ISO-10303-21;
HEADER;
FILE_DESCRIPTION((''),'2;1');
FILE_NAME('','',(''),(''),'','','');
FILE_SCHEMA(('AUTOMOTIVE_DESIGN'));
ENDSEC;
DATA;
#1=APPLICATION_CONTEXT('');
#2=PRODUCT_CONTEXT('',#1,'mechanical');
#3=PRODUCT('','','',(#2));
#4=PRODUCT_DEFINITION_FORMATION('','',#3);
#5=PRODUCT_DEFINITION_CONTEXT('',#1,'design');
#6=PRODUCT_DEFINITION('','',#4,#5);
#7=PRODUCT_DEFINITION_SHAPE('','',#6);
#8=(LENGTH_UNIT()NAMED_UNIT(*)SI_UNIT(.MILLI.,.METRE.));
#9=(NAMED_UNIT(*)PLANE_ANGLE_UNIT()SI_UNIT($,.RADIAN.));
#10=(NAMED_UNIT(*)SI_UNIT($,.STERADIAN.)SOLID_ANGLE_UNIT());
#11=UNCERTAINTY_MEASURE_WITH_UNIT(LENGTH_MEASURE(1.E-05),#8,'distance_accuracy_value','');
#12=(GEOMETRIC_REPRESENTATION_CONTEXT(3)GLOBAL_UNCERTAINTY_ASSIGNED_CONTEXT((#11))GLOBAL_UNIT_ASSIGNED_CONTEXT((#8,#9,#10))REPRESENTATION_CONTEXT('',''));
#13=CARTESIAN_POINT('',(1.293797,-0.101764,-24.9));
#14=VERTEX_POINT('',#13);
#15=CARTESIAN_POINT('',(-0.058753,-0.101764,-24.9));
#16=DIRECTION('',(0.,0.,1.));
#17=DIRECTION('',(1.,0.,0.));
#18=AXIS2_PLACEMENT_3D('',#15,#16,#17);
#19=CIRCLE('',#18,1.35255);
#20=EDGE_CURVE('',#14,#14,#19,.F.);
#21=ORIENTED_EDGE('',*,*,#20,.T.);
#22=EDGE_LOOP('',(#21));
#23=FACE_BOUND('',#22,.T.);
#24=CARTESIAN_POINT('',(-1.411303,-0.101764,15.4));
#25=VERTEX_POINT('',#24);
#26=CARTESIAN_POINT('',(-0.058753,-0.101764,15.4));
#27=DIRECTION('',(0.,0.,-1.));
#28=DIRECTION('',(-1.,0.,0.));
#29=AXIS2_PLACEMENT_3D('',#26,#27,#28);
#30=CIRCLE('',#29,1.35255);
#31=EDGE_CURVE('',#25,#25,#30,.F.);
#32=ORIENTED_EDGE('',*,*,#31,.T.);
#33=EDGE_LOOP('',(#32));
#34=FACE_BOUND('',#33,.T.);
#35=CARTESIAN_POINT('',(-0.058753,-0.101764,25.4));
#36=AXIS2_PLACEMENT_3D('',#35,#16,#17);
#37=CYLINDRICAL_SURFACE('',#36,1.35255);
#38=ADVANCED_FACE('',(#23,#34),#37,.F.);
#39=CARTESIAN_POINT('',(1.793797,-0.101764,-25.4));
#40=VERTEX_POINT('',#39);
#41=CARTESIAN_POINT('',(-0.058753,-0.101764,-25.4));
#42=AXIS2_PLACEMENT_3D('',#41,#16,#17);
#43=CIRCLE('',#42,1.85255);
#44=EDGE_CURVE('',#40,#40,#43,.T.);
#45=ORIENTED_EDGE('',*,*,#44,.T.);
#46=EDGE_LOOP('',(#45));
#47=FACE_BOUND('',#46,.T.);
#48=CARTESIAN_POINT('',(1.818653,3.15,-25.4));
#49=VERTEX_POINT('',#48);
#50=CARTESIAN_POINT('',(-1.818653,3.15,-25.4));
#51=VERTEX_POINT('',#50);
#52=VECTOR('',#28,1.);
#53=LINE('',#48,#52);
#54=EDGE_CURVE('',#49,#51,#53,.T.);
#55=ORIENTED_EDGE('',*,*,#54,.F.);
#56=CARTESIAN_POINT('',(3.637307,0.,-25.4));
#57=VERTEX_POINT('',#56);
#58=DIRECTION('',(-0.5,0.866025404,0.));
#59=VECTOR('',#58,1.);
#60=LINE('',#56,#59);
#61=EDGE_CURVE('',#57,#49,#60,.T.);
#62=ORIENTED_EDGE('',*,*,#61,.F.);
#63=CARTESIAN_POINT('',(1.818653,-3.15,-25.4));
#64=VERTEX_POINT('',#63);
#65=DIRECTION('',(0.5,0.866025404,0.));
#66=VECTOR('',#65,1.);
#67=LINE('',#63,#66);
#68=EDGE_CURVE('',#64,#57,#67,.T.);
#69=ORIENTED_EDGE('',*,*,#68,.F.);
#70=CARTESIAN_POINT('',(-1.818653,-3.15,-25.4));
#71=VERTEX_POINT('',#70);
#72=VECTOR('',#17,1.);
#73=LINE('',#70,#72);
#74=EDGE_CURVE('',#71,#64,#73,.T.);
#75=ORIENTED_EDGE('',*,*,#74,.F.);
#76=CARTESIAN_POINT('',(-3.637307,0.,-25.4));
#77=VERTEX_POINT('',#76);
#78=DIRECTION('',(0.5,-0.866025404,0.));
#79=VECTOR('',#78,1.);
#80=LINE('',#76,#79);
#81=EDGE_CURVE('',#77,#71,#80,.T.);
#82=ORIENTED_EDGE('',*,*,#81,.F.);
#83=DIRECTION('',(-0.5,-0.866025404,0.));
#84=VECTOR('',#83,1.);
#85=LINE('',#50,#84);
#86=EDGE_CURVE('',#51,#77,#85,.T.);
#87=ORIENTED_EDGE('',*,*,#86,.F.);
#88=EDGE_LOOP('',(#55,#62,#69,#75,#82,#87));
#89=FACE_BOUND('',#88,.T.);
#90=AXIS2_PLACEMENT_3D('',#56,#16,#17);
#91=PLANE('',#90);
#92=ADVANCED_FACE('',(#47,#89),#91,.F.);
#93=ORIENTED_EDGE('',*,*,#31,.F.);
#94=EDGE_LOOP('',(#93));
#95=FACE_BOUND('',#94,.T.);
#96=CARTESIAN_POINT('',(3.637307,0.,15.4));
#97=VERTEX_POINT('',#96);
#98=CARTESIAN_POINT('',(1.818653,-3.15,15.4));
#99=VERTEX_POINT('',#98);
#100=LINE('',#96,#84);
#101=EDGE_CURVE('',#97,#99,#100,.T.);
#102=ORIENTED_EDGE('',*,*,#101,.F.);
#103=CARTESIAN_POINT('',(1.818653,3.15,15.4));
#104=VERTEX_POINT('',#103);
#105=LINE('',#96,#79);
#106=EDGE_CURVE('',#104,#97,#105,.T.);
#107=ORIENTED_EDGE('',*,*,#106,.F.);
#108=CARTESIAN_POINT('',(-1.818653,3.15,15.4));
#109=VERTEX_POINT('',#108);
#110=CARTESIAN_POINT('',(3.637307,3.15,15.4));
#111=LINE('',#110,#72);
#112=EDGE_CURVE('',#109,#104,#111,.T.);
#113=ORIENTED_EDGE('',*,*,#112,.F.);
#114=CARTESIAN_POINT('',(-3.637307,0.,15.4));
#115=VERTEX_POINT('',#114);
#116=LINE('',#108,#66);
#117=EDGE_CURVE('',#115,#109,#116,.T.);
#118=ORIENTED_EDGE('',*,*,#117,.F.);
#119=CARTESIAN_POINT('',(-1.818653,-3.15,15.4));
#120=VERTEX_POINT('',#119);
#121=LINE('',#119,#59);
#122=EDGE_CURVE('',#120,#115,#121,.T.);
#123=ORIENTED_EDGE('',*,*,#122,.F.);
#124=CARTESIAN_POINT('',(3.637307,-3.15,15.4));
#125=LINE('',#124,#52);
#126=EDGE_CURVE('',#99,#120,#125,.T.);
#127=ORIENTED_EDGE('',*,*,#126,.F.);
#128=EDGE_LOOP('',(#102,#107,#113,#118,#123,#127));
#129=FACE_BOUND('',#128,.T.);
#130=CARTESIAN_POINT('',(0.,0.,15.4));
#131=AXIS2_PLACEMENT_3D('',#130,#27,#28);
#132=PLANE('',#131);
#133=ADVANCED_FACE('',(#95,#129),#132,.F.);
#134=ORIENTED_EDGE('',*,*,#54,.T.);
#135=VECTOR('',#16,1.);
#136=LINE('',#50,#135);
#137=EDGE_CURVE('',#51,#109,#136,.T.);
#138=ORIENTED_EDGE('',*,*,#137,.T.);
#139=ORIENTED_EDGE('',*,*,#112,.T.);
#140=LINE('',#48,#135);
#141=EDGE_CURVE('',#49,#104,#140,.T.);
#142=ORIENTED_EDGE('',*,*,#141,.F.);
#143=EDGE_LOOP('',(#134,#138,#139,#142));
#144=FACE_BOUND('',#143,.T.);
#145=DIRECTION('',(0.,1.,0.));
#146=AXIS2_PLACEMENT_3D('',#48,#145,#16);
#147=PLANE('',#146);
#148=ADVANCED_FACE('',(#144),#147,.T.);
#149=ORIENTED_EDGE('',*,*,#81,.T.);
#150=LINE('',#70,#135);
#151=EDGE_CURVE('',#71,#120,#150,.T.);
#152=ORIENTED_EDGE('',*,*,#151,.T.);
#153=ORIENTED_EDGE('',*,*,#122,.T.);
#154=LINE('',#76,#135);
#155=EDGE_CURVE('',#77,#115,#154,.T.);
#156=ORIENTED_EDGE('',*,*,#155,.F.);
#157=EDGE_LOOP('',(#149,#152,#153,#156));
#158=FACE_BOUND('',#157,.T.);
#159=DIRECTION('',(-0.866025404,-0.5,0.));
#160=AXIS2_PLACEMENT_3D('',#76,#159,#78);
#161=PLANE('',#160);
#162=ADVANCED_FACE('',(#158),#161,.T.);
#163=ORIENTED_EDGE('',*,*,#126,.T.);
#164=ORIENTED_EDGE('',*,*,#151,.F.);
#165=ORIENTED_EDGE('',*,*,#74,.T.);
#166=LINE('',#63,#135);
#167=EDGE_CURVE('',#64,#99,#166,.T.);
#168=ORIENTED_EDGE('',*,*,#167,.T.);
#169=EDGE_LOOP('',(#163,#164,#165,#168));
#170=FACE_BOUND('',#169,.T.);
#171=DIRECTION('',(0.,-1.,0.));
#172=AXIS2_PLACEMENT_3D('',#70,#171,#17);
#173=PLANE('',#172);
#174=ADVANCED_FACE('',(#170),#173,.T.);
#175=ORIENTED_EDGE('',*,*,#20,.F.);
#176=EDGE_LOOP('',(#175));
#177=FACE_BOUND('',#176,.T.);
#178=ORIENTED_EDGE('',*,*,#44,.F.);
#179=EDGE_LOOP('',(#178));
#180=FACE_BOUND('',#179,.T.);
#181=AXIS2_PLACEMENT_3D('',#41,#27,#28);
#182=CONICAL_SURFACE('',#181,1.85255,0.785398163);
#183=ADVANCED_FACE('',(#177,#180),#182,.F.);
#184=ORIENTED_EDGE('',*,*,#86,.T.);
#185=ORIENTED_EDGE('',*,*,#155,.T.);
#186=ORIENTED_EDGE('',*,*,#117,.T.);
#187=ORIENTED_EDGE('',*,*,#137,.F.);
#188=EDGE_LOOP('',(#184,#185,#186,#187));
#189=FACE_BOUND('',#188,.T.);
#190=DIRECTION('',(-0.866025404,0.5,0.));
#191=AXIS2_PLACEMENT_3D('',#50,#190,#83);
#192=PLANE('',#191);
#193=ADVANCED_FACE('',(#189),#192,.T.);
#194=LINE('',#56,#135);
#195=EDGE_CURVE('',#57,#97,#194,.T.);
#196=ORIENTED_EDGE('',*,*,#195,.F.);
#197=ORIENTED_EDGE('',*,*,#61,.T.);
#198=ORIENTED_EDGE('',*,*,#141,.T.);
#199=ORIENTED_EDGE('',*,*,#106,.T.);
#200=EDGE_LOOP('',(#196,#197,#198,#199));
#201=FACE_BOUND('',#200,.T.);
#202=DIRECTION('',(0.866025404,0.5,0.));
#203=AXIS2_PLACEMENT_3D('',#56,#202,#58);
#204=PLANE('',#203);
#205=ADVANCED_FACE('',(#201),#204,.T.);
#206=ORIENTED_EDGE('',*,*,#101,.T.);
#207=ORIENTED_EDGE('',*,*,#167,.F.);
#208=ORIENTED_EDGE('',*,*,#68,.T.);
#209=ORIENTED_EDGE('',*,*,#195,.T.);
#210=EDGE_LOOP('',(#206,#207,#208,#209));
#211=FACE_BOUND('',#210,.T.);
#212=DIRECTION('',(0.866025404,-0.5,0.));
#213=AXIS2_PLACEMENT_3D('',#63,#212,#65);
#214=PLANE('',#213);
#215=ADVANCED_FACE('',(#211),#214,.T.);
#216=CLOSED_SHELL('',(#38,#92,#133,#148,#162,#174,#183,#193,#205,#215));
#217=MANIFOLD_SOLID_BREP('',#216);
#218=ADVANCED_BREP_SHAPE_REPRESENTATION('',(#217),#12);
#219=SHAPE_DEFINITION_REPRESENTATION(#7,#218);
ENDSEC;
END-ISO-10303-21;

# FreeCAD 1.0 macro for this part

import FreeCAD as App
import Part
import Sketcher

V = App.Vector
Q = App.Units.Quantity


def edges_at(feature, points):
    """Names of the edges that pass closest to the given points."""
    edges = feature.Shape.Edges
    near = lambda p: min(range(len(edges)), key=lambda i: edges[i].distToShape(Part.Vertex(*p))[0])
    return sorted({f"Edge{near(p) + 1}" for p in points})


def add_polygon(sketch, points):
    """Adds a closed chain of lines whose ends are joined by coincident constraints."""
    first, n = sketch.GeometryCount, len(points)
    for a, b in zip(points, points[1:] + points[:1]):
        sketch.addGeometry(Part.LineSegment(App.Vector(*a, 0), App.Vector(*b, 0)), False)
    for i in range(n):
        sketch.addConstraint(Sketcher.Constraint("Coincident", first + i, 2, first + (i + 1) % n, 1))

doc = App.newDocument("Part")
body = doc.addObject("PartDesign::Body", "Body")

sketch1 = body.newObject("Sketcher::SketchObject", "Sketch")
sketch1.AttachmentSupport = (doc.getObject("XY_Plane"), [""])
sketch1.MapMode = "FlatFace"
add_polygon(sketch1, [(3.6, 0), (1.8, 3.1), (-1.8, 3.1), (-3.6, 0), (-1.8, -3.1), (1.8, -3.1)])
sketch1.addConstraint(Sketcher.Constraint("Horizontal", 1))
sketch1.addConstraint(Sketcher.Constraint("Horizontal", 4))
sketch1.addConstraint(Sketcher.Constraint("Symmetric", 0, 2, 3, 2, -1, 1))
sketch1.addConstraint(Sketcher.Constraint("Symmetric", 2, 2, 5, 2, -1, 1))
sketch1.addConstraint(Sketcher.Constraint("PointOnObject", 2, 2, -1))
sketch1.addConstraint(Sketcher.Constraint("Parallel", 2, 5))
sketch1.addConstraint(Sketcher.Constraint("Vertical", 1, 2, 3, 2))
sketch1.addConstraint(Sketcher.Constraint("Angle", 0, Q("120 deg")))
sketch1.addConstraint(Sketcher.Constraint("DistanceY", 3, 2, 1, 2, 6.3))
sketch1.addConstraint(Sketcher.Constraint("DistanceX", 1, 2, 1, 1, 3.637307))
pad1 = body.newObject("PartDesign::Pad", "Pad")
pad1.Profile = sketch1
pad1.Length = 50.8
pad1.Midplane = True

sketch2 = body.newObject("Sketcher::SketchObject", "Sketch001")
sketch2.AttachmentSupport = (doc.getObject("XY_Plane"), [""])
sketch2.MapMode = "FlatFace"
sketch2.AttachmentOffset = App.Placement(V(0, 0, 25.4), App.Rotation())
sketch2.addGeometry(Part.Circle(V(-0.1, -0.1, 0), V(0, 0, 1), 1.4), False)
sketch2.addConstraint(Sketcher.Constraint("Diameter", 0, 2.7051))
sketch2.addConstraint(Sketcher.Constraint("DistanceX", 0, 3, -1, 1, 0.058753))
sketch2.addConstraint(Sketcher.Constraint("DistanceY", 0, 3, -1, 1, 0.101764))
doc.recompute()
hole = body.newObject("PartDesign::Hole", "Hole")
hole.Profile = sketch2
hole.ThreadType = "None"
hole.Diameter = 2.7051
hole.DepthType = "ThroughAll"
doc.recompute()

chamfer = body.newObject("PartDesign::Chamfer", "Chamfer")
chamfer.Base = (hole, edges_at(hole, [(1.294, -0.102, 25.4)]))
chamfer.Size = 0.5
doc.recompute()

chamfer2 = body.newObject("PartDesign::Chamfer", "Chamfer001")
chamfer2.Base = (chamfer, edges_at(chamfer, [(1.294, -0.102, -25.4)]))
chamfer2.Size = 0.5

sketch3 = body.newObject("Sketcher::SketchObject", "Sketch002")
sketch3.AttachmentSupport = (doc.getObject("XY_Plane"), [""])
sketch3.MapMode = "FlatFace"
sketch3.AttachmentOffset = App.Placement(V(0, 0, 25.4), App.Rotation())
add_polygon(sketch3, [(3.6, 0), (1.8, 3.1), (-1.8, 3.1), (-3.6, 0), (-1.8, -3.1), (1.8, -3.1)])
sketch3.addConstraint(Sketcher.Constraint("Horizontal", 1))
sketch3.addConstraint(Sketcher.Constraint("Horizontal", 4))
sketch3.addConstraint(Sketcher.Constraint("Symmetric", 0, 2, 3, 2, -1, 1))
sketch3.addConstraint(Sketcher.Constraint("Symmetric", 2, 2, 5, 2, -1, 1))
sketch3.addConstraint(Sketcher.Constraint("PointOnObject", 2, 2, -1))
sketch3.addConstraint(Sketcher.Constraint("Parallel", 2, 5))
sketch3.addConstraint(Sketcher.Constraint("Vertical", 1, 2, 3, 2))
sketch3.addConstraint(Sketcher.Constraint("Angle", 0, Q("120 deg")))
sketch3.addConstraint(Sketcher.Constraint("DistanceY", 3, 2, 1, 2, 6.3))
sketch3.addConstraint(Sketcher.Constraint("DistanceX", 1, 2, 1, 1, 3.637307))
pocket1 = body.newObject("PartDesign::Pocket", "Pocket")
pocket1.Profile = sketch3
pocket1.Length = 10

doc.recompute()
